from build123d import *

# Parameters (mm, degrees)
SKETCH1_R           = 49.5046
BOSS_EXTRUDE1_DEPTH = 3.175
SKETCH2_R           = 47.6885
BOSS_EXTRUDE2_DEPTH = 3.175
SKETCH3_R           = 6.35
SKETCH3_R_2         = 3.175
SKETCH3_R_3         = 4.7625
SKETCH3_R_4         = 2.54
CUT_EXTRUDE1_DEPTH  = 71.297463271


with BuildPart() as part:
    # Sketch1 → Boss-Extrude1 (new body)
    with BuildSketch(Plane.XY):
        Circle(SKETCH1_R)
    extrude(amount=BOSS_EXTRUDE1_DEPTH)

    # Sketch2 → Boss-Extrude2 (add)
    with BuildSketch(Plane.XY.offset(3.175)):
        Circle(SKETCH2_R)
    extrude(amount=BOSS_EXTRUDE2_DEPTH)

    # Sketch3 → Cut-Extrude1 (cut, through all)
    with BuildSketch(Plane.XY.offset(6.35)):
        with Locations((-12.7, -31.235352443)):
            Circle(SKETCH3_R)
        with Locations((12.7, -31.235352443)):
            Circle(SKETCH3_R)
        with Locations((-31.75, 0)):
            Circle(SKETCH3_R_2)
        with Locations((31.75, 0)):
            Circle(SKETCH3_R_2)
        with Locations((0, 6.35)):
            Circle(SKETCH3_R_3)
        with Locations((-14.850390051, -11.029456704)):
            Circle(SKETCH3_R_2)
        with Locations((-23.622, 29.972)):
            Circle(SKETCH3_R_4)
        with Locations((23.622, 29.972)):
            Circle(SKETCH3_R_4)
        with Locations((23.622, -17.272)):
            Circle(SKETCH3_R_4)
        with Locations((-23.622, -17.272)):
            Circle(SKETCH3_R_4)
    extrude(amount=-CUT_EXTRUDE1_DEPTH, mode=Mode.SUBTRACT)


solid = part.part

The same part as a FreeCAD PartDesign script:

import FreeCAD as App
import Part
import Sketcher

V = App.Vector
Q = App.Units.Quantity

doc = App.newDocument("Part")
params = doc.addObject("Spreadsheet::Sheet", "Params")
for row, (alias, value) in enumerate([
    ("sketch1_diameter", "3.898 in"),
    ("pad1_length", "0.125 in"),
    ("sketch2_diameter", "3.755 in"),
    ("pad2_length", "0.125 in"),
    ("sketch3_diameter", "0.5 in"),
    ("sketch3_diameter2", "0.2 in"),
    ("sketch3_diameter3", "0.25 in"),
    ("sketch3_diameter4", "0.375 in"),
], start=1):
    params.set(f"A{row}", alias)
    params.set(f"B{row}", "=" + value)
    params.setAlias(f"B{row}", alias)

body = doc.addObject("PartDesign::Body", "Body")

sketch1 = body.newObject("Sketcher::SketchObject", "Sketch")
sketch1.AttachmentSupport = (doc.getObject("XY_Plane"), [""])
sketch1.MapMode = "FlatFace"
sketch1.addGeometry(Part.Circle(V(0, 0, 0), V(0, 0, 1), 50), False)
sketch1.addConstraint(Sketcher.Constraint("Coincident", 0, 3, -1, 1))
sketch1.addConstraint(Sketcher.Constraint("Diameter", 0, Q("3.898 in")))
sketch1.setExpression("Constraints[1]", "Params.sketch1_diameter")
pad1 = body.newObject("PartDesign::Pad", "Pad")
pad1.Profile = sketch1
pad1.setExpression("Length", "Params.pad1_length")

sketch2 = body.newObject("Sketcher::SketchObject", "Sketch001")
sketch2.AttachmentSupport = (doc.getObject("XY_Plane"), [""])
sketch2.MapMode = "FlatFace"
sketch2.AttachmentOffset = App.Placement(V(0, 0, 0.125 * 25.4), App.Rotation())
sketch2.addGeometry(Part.Circle(V(0, 0, 0), V(0, 0, 1), 48), False)
sketch2.addConstraint(Sketcher.Constraint("Coincident", 0, 3, -1, 1))
sketch2.addConstraint(Sketcher.Constraint("Diameter", 0, Q("3.755 in")))
sketch2.setExpression("Constraints[1]", "Params.sketch2_diameter")
pad2 = body.newObject("PartDesign::Pad", "Pad001")
pad2.Profile = sketch2
pad2.setExpression("Length", "Params.pad2_length")

sketch3 = body.newObject("Sketcher::SketchObject", "Sketch002")
sketch3.AttachmentSupport = (doc.getObject("XY_Plane"), [""])
sketch3.MapMode = "FlatFace"
sketch3.AttachmentOffset = App.Placement(V(0, 0, 0.25 * 25.4), App.Rotation())
sketch3.addGeometry(Part.Circle(V(-12.7, -31.2, 0), V(0, 0, 1), 6.3), False)
sketch3.addGeometry(Part.Circle(V(12.7, -31.2, 0), V(0, 0, 1), 6.3), False)
sketch3.addGeometry(Part.Circle(V(-31.8, 0, 0), V(0, 0, 1), 3.2), False)
sketch3.addGeometry(Part.Circle(V(31.8, 0, 0), V(0, 0, 1), 3.2), False)
sketch3.addGeometry(Part.Circle(V(0, 6.3, 0), V(0, 0, 1), 4.8), False)
sketch3.addGeometry(Part.Circle(V(-14.9, -11, 0), V(0, 0, 1), 3.2), False)
sketch3.addGeometry(Part.Circle(V(-23.6, 30, 0), V(0, 0, 1), 2.5), False)
sketch3.addGeometry(Part.Circle(V(23.6, 30, 0), V(0, 0, 1), 2.5), False)
sketch3.addGeometry(Part.Circle(V(23.6, -17.3, 0), V(0, 0, 1), 2.5), False)
sketch3.addGeometry(Part.Circle(V(-23.6, -17.3, 0), V(0, 0, 1), 2.5), False)
sketch3.addConstraint(Sketcher.Constraint("Equal", 0, 1))
sketch3.addConstraint(Sketcher.Constraint("Equal", 2, 3))
sketch3.addConstraint(Sketcher.Constraint("Equal", 3, 5))
sketch3.addConstraint(Sketcher.Constraint("Equal", 6, 7))
sketch3.addConstraint(Sketcher.Constraint("Equal", 7, 8))
sketch3.addConstraint(Sketcher.Constraint("Equal", 8, 9))
sketch3.addConstraint(Sketcher.Constraint("Symmetric", 2, 3, 3, 3, -1, 1))
sketch3.addConstraint(Sketcher.Constraint("Symmetric", 0, 3, 1, 3, -2))
sketch3.addConstraint(Sketcher.Constraint("Symmetric", 6, 3, 7, 3, -2))
sketch3.addConstraint(Sketcher.Constraint("Symmetric", 8, 3, 9, 3, -2))
sketch3.addConstraint(Sketcher.Constraint("PointOnObject", 2, 3, -1))
sketch3.addConstraint(Sketcher.Constraint("PointOnObject", 4, 3, -2))
sketch3.addConstraint(Sketcher.Constraint("Vertical", 7, 3, 8, 3))
sketch3.addConstraint(Sketcher.Constraint("Diameter", 0, Q("0.5 in")))
sketch3.addConstraint(Sketcher.Constraint("Diameter", 6, Q("0.2 in")))
sketch3.addConstraint(Sketcher.Constraint("Diameter", 2, Q("0.25 in")))
sketch3.addConstraint(Sketcher.Constraint("Diameter", 4, Q("0.375 in")))
sketch3.addConstraint(Sketcher.Constraint("DistanceX", 0, 3, 1, 3, Q("1 in")))
sketch3.addConstraint(Sketcher.Constraint("DistanceX", 2, 3, 3, 3, Q("2.5 in")))
sketch3.addConstraint(Sketcher.Constraint("DistanceY", -1, 1, 4, 3, Q("0.25 in")))
sketch3.addConstraint(Sketcher.Constraint("DistanceX", 6, 3, -1, 1, Q("0.93 in")))
sketch3.addConstraint(Sketcher.Constraint("DistanceY", -1, 1, 6, 3, Q("1.18 in")))
sketch3.addConstraint(Sketcher.Constraint("DistanceY", 8, 3, -1, 1, Q("0.68 in")))
sketch3.addConstraint(Sketcher.Constraint("DistanceX", 5, 3, -1, 1, Q("14.85039 mm")))
sketch3.addConstraint(Sketcher.Constraint("DistanceY", 0, 3, -1, 1, Q("31.235352 mm")))
sketch3.addConstraint(Sketcher.Constraint("DistanceY", 5, 3, -1, 1, Q("11.029457 mm")))
sketch3.setExpression("Constraints[13]", "Params.sketch3_diameter")
sketch3.setExpression("Constraints[14]", "Params.sketch3_diameter2")
sketch3.setExpression("Constraints[15]", "Params.sketch3_diameter3")
sketch3.setExpression("Constraints[16]", "Params.sketch3_diameter4")
pocket1 = body.newObject("PartDesign::Pocket", "Pocket")
pocket1.Profile = sketch3
pocket1.Type = "ThroughAll"

doc.recompute()
